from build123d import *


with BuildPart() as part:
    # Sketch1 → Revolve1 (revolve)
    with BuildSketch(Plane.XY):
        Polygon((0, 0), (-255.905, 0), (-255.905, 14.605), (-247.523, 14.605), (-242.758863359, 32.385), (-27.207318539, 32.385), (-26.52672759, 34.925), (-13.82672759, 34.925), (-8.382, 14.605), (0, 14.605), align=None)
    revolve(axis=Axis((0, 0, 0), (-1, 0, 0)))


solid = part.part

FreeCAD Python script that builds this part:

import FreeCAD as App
import Part
import Sketcher
Q = App.Units.Quantity


def add_polygon(sketch, points):
    """Adds a closed chain of lines whose ends are joined by coincident constraints."""
    first, n = sketch.GeometryCount, len(points)
    for a, b in zip(points, points[1:] + points[:1]):
        sketch.addGeometry(Part.LineSegment(App.Vector(*a, 0), App.Vector(*b, 0)), False)
    for i in range(n):
        sketch.addConstraint(Sketcher.Constraint("Coincident", first + i, 2, first + (i + 1) % n, 1))

doc = App.newDocument("Part")
params = doc.addObject("Spreadsheet::Sheet", "Params")
for row, (alias, value) in enumerate([
    ("sketch1_width", "0.5 in"),
    ("sketch1_width2", "0.33 in"),
    ("sketch1_width3", "10.075 in"),
    ("sketch1_height", "0.575 in"),
    ("revolution_angle", "360 deg"),
], start=1):
    params.set(f"A{row}", alias)
    params.set(f"B{row}", "=" + value)
    params.setAlias(f"B{row}", alias)

body = doc.addObject("PartDesign::Body", "Body")

sketch1 = body.newObject("Sketcher::SketchObject", "Sketch")
sketch1.AttachmentSupport = (doc.getObject("XY_Plane"), [""])
sketch1.MapMode = "FlatFace"
add_polygon(sketch1, [(-255.9, 0), (0, 0), (0, 14.6), (-8.4, 14.6), (-13.8, 34.9), (-26.5, 34.9), (-27.2, 32.4), (-242.8, 32.4), (-247.5, 14.6), (-255.9, 14.6)])
sketch1.addConstraint([
    Sketcher.Constraint("Horizontal", 0),
    Sketcher.Constraint("Vertical", 1),
    Sketcher.Constraint("Horizontal", 2),
    Sketcher.Constraint("Horizontal", 4),
    Sketcher.Constraint("Horizontal", 6),
    Sketcher.Constraint("Horizontal", 8),
    Sketcher.Constraint("Vertical", 9),
    Sketcher.Constraint("Coincident", 0, 2, -1, 1),
    Sketcher.Constraint("Parallel", 5, 7),
    Sketcher.Constraint("Horizontal", 2, 2, 7, 2),
    Sketcher.Constraint("Equal", 2, 8),
    Sketcher.Constraint("DistanceX", 4, 2, 4, 1, Q("0.5 in")),
    Sketcher.Constraint("Angle", 3, Q("105 deg")),
    Sketcher.Constraint("Angle", 5, Q("-105 deg")),
    Sketcher.Constraint("DistanceX", 2, 2, 2, 1, Q("0.33 in")),
    Sketcher.Constraint("DistanceY", 2, 2, 3, 2, Q("0.8 in")),
    Sketcher.Constraint("DistanceY", 5, 2, 4, 2, Q("0.1 in")),
    Sketcher.Constraint("DistanceX", 0, 1, 0, 2, Q("10.075 in")),
    Sketcher.Constraint("DistanceY", 1, 1, 1, 2, Q("0.575 in")),
])
sketch1.setExpression("Constraints[21]", "Params.sketch1_width")
sketch1.setExpression("Constraints[24]", "Params.sketch1_width2")
sketch1.setExpression("Constraints[27]", "Params.sketch1_width3")
sketch1.setExpression("Constraints[28]", "Params.sketch1_height")
revolution = body.newObject("PartDesign::Revolution", "Revolution")
revolution.Profile = sketch1
revolution.ReferenceAxis = (sketch1, ["H_Axis"])
revolution.setExpression("Angle", "Params.revolution_angle")

doc.recompute()
